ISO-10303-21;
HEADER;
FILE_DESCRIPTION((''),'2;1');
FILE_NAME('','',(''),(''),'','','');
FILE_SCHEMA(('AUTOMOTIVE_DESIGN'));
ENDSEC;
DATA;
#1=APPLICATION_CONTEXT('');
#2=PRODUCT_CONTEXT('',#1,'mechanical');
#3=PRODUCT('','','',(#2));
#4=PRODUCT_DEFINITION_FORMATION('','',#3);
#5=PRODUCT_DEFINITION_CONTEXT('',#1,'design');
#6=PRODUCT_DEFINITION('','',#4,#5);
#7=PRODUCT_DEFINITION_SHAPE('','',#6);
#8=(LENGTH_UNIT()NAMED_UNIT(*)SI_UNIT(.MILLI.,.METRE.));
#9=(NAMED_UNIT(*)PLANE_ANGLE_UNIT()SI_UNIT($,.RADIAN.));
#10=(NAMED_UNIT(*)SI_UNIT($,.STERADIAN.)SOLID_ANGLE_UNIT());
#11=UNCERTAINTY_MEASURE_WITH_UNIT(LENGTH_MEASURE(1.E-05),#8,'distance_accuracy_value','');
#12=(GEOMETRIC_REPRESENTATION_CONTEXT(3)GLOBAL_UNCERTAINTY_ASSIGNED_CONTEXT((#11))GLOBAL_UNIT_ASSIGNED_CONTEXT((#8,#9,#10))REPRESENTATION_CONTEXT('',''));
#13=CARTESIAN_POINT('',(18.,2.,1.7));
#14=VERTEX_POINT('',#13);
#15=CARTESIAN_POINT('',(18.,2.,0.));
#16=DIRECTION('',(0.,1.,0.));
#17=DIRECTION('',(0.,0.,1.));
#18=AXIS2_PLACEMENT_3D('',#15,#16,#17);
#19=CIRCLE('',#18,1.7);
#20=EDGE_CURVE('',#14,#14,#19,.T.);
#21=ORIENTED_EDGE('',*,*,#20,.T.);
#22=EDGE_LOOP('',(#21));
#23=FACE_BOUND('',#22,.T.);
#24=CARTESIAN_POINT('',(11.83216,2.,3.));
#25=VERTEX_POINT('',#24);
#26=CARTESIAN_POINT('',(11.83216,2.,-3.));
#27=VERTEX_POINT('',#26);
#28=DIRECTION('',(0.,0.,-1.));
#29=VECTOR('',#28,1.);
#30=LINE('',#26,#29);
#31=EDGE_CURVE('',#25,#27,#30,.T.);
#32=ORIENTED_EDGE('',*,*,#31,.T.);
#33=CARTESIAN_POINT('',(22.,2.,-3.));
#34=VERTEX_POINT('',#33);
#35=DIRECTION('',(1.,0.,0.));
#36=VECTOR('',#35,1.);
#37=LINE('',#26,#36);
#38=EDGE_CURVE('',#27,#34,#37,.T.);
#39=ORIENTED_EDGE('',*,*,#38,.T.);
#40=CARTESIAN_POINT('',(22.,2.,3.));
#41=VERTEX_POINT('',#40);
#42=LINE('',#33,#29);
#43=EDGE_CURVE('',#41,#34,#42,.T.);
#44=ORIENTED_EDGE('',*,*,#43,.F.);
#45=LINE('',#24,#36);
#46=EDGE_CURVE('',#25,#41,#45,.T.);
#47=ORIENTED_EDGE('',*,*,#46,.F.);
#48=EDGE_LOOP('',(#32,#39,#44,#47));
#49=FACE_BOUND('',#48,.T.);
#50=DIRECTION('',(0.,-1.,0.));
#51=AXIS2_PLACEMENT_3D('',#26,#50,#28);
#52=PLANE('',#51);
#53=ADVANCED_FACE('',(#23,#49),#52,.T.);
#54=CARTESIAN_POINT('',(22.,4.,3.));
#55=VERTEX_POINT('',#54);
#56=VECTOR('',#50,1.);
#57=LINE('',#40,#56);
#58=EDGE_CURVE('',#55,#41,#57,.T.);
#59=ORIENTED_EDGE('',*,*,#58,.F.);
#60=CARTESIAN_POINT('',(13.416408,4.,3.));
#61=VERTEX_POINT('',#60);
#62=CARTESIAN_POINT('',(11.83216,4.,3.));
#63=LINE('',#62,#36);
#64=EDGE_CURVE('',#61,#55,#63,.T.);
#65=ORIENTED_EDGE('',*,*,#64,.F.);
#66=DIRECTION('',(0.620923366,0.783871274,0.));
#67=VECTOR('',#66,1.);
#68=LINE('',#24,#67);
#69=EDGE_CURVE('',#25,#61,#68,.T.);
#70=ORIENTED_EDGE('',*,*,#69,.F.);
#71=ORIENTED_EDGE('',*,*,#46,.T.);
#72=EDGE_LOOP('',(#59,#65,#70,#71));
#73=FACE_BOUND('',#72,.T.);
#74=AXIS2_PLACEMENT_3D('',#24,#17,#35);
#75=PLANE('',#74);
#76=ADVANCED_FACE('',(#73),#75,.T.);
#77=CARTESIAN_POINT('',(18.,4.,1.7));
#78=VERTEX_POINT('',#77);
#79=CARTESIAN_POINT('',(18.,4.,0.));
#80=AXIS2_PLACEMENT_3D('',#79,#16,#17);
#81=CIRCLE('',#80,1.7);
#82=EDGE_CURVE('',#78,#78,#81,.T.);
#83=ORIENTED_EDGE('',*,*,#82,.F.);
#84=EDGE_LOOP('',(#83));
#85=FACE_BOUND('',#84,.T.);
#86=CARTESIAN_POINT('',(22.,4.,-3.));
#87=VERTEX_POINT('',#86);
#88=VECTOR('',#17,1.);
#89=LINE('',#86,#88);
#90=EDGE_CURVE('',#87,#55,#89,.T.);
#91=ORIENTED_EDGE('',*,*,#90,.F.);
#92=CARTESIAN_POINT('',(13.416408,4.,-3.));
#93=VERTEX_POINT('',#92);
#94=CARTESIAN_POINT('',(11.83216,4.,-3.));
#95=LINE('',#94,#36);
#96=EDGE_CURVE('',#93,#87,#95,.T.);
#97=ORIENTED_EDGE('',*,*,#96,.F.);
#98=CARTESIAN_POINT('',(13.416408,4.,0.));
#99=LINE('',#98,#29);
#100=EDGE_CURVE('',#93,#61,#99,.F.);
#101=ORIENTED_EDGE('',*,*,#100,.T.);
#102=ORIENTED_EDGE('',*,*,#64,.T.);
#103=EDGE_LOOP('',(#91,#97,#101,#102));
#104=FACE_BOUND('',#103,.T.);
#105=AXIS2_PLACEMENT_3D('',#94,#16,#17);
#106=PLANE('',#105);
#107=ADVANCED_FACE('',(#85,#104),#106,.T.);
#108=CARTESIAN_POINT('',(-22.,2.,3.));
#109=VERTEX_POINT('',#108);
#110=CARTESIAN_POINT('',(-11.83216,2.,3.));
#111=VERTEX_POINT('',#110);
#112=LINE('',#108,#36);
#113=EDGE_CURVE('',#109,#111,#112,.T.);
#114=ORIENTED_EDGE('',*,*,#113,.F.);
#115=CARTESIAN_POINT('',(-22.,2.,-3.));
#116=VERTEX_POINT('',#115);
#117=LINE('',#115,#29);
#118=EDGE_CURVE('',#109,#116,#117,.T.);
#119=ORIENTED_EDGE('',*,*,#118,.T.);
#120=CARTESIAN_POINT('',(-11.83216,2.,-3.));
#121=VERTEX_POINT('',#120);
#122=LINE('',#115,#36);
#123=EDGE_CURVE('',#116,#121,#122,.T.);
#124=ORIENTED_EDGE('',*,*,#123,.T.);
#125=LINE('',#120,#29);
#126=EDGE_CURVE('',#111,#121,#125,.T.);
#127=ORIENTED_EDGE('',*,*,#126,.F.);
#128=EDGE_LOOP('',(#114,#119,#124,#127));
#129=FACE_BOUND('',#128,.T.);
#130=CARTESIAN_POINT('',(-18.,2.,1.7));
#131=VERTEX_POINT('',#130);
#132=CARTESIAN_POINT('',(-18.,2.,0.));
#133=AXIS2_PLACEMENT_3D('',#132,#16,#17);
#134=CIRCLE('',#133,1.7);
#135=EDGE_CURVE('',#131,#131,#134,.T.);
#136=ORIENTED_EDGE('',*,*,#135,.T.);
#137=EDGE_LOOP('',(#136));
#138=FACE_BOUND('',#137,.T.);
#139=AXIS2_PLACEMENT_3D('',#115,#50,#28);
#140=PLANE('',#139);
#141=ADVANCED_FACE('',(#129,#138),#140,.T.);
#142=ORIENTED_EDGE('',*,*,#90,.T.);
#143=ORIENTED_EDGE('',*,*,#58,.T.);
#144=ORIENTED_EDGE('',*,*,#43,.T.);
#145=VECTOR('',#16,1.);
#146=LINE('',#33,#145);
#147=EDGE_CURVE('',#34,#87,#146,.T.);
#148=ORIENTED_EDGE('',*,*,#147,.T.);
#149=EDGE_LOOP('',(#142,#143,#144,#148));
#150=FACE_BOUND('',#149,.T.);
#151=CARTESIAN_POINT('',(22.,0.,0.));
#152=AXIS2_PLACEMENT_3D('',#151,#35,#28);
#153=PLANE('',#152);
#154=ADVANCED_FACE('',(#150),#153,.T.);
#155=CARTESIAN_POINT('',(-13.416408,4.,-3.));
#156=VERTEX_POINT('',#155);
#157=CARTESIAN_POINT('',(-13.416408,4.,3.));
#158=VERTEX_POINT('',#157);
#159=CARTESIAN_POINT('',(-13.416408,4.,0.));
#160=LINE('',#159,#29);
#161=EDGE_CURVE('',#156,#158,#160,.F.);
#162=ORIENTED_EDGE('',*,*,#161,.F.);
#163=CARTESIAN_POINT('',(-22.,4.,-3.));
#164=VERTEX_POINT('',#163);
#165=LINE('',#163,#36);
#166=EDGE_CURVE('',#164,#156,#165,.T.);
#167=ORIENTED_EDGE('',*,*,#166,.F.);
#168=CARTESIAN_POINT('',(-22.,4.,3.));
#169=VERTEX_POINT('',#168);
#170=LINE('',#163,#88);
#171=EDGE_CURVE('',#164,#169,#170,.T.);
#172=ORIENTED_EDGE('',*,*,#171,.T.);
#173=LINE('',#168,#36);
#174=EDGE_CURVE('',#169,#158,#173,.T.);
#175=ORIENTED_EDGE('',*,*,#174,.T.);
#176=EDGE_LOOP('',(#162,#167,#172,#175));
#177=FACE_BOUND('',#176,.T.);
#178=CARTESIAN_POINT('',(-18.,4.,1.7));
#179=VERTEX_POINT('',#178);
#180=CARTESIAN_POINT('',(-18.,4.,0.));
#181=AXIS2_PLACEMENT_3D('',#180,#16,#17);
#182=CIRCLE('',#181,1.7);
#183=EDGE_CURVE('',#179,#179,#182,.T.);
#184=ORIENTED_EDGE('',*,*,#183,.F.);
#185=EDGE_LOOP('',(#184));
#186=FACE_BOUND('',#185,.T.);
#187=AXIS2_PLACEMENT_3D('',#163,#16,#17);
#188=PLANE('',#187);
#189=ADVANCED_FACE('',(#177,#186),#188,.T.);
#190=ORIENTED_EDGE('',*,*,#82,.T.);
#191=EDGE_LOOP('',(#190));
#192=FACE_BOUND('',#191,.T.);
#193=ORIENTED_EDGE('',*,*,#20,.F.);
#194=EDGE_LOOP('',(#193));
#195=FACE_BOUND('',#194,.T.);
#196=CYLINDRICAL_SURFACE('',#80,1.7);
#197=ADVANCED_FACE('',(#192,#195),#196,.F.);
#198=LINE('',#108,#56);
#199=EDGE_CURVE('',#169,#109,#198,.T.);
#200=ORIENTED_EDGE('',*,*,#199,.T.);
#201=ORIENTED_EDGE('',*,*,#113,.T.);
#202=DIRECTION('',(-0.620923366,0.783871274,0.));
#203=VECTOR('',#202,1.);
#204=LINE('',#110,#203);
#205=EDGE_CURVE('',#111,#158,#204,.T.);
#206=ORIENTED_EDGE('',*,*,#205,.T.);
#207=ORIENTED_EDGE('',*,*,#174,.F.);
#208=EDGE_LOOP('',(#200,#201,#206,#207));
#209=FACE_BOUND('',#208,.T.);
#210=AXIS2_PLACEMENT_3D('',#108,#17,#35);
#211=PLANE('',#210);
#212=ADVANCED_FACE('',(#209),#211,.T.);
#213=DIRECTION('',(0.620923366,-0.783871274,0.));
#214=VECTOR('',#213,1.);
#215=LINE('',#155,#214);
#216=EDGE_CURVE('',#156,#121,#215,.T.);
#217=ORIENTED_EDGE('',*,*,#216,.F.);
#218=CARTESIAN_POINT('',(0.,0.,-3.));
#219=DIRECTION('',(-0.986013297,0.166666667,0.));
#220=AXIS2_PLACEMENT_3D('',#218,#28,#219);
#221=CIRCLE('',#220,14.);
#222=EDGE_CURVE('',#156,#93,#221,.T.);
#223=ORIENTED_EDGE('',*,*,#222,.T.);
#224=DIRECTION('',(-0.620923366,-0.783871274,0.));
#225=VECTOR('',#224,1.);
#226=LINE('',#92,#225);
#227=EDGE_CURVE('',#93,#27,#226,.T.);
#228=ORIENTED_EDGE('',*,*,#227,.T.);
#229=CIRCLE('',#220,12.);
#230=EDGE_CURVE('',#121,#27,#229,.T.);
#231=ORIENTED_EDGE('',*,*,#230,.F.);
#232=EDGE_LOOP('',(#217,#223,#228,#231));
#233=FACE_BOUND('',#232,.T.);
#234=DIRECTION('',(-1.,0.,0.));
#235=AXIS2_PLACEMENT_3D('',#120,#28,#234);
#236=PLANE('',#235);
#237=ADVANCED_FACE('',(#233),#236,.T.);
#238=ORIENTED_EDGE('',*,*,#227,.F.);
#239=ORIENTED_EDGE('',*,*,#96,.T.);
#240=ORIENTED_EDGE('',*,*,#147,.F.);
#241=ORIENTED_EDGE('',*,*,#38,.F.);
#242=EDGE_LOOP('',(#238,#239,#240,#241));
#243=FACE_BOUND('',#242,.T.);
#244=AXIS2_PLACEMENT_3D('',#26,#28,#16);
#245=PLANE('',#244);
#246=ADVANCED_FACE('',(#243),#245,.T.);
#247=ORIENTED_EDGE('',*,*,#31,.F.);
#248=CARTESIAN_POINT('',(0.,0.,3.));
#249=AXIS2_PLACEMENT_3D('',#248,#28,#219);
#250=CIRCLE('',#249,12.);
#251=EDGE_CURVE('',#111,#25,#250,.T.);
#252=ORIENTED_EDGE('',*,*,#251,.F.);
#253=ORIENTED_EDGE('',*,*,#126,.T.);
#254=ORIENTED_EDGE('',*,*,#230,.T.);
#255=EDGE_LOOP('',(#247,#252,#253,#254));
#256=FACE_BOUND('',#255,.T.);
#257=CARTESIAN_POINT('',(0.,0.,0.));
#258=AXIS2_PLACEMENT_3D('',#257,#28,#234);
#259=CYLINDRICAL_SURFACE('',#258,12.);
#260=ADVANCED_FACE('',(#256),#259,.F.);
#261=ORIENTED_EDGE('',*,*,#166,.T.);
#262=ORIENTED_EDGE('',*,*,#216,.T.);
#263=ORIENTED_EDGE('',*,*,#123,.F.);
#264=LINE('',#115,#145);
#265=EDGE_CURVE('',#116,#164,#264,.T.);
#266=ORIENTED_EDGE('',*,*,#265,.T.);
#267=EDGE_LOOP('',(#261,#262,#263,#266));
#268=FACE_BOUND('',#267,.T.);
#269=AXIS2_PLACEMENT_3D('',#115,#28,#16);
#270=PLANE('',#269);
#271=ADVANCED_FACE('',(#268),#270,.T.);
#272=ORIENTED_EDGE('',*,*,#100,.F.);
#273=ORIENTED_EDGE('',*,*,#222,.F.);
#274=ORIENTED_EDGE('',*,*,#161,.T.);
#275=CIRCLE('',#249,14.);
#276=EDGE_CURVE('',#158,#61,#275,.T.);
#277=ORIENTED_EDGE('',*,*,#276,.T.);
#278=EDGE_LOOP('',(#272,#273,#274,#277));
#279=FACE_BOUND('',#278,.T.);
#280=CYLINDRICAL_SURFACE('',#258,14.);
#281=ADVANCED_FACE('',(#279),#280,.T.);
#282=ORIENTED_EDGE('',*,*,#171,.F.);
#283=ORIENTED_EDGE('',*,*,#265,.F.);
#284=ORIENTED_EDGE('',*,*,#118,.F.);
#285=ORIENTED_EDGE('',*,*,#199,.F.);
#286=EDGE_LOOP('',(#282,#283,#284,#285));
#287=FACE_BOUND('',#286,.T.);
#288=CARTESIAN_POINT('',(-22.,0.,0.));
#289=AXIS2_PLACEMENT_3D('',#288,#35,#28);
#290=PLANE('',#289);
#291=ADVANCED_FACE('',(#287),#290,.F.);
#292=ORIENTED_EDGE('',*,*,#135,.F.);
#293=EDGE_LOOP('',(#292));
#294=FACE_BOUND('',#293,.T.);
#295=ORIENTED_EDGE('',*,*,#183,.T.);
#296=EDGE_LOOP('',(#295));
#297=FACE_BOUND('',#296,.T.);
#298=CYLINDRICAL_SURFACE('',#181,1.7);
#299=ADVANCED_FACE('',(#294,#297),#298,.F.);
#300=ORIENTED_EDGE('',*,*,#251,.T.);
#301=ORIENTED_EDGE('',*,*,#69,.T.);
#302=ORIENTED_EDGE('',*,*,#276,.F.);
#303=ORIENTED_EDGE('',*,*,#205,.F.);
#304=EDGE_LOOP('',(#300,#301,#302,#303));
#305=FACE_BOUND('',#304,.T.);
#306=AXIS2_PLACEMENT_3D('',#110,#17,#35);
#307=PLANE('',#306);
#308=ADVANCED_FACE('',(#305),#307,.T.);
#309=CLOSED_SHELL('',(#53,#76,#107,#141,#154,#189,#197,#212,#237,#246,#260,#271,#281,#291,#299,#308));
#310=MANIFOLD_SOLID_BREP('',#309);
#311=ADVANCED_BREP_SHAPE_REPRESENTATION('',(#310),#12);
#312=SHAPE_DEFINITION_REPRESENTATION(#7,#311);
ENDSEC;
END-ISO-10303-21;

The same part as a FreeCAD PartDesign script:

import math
import FreeCAD as App
import Part
import Sketcher

V = App.Vector


def add_polygon(sketch, points):
    """Adds a closed chain of lines whose ends are joined by coincident constraints."""
    first, n = sketch.GeometryCount, len(points)
    for a, b in zip(points, points[1:] + points[:1]):
        sketch.addGeometry(Part.LineSegment(App.Vector(*a, 0), App.Vector(*b, 0)), False)
    for i in range(n):
        sketch.addConstraint(Sketcher.Constraint("Coincident", first + i, 2, first + (i + 1) % n, 1))

doc = App.newDocument("Part")
body = doc.addObject("PartDesign::Body", "Body")

# Sketch on YZ plane
sketch1 = doc.addObject("Sketcher::SketchObject", "Sketch")
body.addObject(sketch1)
sketch1.AttachmentSupport = (doc.YZ_Plane, [""])
sketch1.MapMode = "FlatFace"
sketch1.AttachmentOffset = App.Placement(V(0, 0, 22), App.Rotation())
add_polygon(sketch1, [(4, 3), (2, 3), (2, -3), (4, -3)])  # lines 0-3
sketch1.addConstraint([
    Sketcher.Constraint("Horizontal", 0),
    Sketcher.Constraint("Vertical", 1),
    Sketcher.Constraint("Horizontal", 2),
    Sketcher.Constraint("Vertical", 3),
    Sketcher.Constraint("DistanceX", 0, 2, 0, 1, 2.0),
    Sketcher.Constraint("DistanceY", 1, 2, 1, 1, 6.0),
    Sketcher.Constraint("DistanceX", -1, 1, 0, 2, 2.0),
    Sketcher.Constraint("DistanceY", -1, 1, 0, 2, 3.0),
])

# Sketch on XY plane
sketch2 = doc.addObject("Sketcher::SketchObject", "Sketch001")
body.addObject(sketch2)
sketch2.AttachmentSupport = (doc.XY_Plane, [""])
sketch2.MapMode = "FlatFace"
sketch2.addGeometry([
    Part.LineSegment(V(-22, 2, 0), V(-12, 2, 0)),
    Part.ArcOfCircle(Part.Circle(V(0, 0, 0), V(0, 0, 1), 12), math.radians(10), math.radians(170)),
    Part.LineSegment(V(12, 2, 0), V(22, 2, 0)),
], False)
sketch2.addConstraint([
    Sketcher.Constraint("Coincident", 0, 2, 1, 2),
    Sketcher.Constraint("Coincident", 1, 1, 2, 1),
    Sketcher.Constraint("Horizontal", 0),
    Sketcher.Constraint("Horizontal", 2),
    Sketcher.Constraint("Coincident", 1, 3, -1, 1),
    Sketcher.Constraint("Symmetric", 0, 1, 2, 2, -2),
    Sketcher.Constraint("Radius", 1, 12.0),
    Sketcher.Constraint("DistanceX", 0, 1, -1, 1, 22.0),
    Sketcher.Constraint("DistanceY", -1, 1, 0, 1, 2.0),
])
doc.recompute()

additivepipe = doc.addObject("PartDesign::AdditivePipe", "AdditivePipe")
body.addObject(additivepipe)
additivepipe.Profile = sketch1
additivepipe.Spine = (sketch2, ["Edge1", "Edge2", "Edge3"])
additivepipe.Transition = "Right corner"

# Sketch on XZ plane
sketch3 = doc.addObject("Sketcher::SketchObject", "Sketch002")
body.addObject(sketch3)
sketch3.AttachmentSupport = (doc.XZ_Plane, [""])
sketch3.MapMode = "FlatFace"
sketch3.AttachmentOffset = App.Placement(V(0, 0, -4), App.Rotation())
sketch3.addGeometry([
    Part.Circle(V(-18, 0, 0), V(0, 0, 1), 1.7),
    Part.Circle(V(18, 0, 0), V(0, 0, 1), 1.7),
], False)
sketch3.addConstraint([
    Sketcher.Constraint("Equal", 0, 1),
    Sketcher.Constraint("Symmetric", 0, 3, 1, 3, -1, 1),
    Sketcher.Constraint("PointOnObject", 0, 3, -1),
    Sketcher.Constraint("Diameter", 0, 3.4),
    Sketcher.Constraint("DistanceX", 0, 3, -1, 1, 18.0),
])
doc.recompute()
hole = doc.addObject("PartDesign::Hole", "Hole")
body.addObject(hole)
hole.Profile = sketch3
hole.ThreadType = "None"
hole.Diameter = 3.4
hole.DepthType = "ThroughAll"
hole.Reversed = True

doc.recompute()
